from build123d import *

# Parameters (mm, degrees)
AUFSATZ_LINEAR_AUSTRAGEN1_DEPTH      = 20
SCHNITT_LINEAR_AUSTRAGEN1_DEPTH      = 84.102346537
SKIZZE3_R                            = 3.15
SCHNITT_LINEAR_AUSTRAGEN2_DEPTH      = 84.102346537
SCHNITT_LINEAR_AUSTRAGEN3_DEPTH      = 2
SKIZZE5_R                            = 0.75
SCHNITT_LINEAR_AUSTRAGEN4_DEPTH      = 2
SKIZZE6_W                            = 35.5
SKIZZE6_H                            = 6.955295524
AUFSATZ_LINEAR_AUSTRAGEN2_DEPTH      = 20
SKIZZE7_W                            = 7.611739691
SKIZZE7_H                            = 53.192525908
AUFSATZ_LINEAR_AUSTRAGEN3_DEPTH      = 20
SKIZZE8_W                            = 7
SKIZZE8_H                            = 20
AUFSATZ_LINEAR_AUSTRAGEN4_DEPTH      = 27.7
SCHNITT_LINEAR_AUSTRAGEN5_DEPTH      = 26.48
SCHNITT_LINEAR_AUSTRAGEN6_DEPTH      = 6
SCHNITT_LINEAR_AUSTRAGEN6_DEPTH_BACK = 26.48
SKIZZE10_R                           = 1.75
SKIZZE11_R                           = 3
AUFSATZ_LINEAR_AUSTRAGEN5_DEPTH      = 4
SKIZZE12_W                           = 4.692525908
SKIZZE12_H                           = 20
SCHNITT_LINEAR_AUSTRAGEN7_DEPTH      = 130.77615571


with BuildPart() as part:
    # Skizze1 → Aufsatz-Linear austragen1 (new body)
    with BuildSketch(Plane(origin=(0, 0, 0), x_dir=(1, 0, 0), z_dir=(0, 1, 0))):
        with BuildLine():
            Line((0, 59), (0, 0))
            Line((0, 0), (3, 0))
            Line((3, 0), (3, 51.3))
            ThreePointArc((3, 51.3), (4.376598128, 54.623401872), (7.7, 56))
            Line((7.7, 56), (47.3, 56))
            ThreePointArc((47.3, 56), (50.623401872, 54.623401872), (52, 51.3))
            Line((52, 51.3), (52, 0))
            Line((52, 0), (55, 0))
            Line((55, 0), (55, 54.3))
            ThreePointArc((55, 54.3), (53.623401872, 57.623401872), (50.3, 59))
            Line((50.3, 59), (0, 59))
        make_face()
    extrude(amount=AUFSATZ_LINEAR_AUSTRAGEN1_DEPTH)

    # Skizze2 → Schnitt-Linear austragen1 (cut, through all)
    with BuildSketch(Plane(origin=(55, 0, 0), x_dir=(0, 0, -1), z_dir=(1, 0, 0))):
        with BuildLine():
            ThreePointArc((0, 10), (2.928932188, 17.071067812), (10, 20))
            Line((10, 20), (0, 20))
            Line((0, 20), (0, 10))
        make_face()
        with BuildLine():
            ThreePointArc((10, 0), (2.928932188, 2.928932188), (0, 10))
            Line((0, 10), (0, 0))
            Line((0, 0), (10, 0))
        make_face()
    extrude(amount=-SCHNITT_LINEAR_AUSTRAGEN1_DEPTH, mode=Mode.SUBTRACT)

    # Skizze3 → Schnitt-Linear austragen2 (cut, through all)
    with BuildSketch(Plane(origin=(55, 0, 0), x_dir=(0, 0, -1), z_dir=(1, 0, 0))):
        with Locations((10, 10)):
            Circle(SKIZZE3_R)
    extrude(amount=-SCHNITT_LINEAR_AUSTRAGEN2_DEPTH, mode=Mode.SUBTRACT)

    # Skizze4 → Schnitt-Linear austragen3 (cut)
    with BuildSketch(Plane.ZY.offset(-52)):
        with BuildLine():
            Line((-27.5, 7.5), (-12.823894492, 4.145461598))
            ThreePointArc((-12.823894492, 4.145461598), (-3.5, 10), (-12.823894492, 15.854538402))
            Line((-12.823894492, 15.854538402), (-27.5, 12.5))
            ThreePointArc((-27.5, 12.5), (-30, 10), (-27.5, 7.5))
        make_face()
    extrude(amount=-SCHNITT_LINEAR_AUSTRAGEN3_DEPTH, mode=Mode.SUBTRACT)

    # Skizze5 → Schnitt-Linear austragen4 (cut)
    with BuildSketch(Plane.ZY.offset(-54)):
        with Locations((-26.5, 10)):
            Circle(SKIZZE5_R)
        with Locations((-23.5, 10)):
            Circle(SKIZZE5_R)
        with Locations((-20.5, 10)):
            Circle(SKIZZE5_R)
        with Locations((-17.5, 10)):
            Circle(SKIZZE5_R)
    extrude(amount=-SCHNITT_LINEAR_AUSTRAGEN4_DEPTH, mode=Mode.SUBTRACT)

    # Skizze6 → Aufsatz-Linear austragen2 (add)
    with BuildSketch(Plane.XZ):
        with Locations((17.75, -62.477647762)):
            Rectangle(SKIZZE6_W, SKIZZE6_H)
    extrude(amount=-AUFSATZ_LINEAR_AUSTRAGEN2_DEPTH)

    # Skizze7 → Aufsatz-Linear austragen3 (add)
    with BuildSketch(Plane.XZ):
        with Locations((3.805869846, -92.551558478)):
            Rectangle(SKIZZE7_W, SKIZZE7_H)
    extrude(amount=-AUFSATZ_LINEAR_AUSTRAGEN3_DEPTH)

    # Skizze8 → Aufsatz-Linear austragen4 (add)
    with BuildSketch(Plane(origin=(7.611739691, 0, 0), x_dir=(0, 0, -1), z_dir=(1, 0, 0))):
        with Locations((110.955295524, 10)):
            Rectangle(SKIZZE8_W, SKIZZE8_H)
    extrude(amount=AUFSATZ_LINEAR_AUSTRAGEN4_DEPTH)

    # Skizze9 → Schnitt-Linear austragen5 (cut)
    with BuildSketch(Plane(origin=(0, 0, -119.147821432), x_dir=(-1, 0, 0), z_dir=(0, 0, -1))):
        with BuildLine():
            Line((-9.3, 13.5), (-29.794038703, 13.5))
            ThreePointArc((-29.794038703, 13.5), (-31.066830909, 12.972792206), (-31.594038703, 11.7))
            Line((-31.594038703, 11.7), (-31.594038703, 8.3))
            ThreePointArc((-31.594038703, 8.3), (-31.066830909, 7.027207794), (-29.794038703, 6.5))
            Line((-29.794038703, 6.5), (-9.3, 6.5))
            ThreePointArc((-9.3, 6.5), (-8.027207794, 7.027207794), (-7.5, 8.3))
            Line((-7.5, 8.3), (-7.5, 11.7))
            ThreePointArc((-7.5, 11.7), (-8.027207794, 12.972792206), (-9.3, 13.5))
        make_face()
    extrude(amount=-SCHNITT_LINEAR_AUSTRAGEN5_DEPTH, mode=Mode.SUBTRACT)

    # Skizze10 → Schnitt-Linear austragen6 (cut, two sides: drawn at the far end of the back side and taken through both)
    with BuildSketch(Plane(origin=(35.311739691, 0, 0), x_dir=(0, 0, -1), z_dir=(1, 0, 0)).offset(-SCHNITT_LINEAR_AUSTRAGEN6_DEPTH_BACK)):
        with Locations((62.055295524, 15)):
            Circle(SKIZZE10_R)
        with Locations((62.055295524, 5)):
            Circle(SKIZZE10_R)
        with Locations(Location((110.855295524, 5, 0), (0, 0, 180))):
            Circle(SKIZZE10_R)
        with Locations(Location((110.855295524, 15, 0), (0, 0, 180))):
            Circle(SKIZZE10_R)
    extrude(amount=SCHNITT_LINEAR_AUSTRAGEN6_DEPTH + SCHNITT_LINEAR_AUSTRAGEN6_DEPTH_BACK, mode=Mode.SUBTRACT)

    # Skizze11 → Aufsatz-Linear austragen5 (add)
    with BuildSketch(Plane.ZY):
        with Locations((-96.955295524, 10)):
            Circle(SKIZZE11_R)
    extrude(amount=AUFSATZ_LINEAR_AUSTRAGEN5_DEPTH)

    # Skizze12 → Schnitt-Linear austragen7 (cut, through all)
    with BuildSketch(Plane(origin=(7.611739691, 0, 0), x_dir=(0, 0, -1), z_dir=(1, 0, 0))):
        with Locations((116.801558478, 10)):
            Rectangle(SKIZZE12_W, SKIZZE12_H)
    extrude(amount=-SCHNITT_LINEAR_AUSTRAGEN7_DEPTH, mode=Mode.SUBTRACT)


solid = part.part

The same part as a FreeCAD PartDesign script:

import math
import FreeCAD as App
import Part
import Sketcher

V = App.Vector
Q = App.Units.Quantity


def add_polygon(sketch, points):
    """Adds a closed chain of lines whose ends are joined by coincident constraints."""
    first, n = sketch.GeometryCount, len(points)
    for a, b in zip(points, points[1:] + points[:1]):
        sketch.addGeometry(Part.LineSegment(App.Vector(*a, 0), App.Vector(*b, 0)), False)
    for i in range(n):
        sketch.addConstraint(Sketcher.Constraint("Coincident", first + i, 2, first + (i + 1) % n, 1))

doc = App.newDocument("Part")
params = doc.addObject("Spreadsheet::Sheet", "Params")
for row, (alias, value) in enumerate([
    ("sketch1_radius", "4.7 mm"),
    ("sketch1_width", "3 mm"),
    ("sketch1_height", "59 mm"),
    ("sketch1_width2", "39.6 mm"),
    ("sketch1_height2", "51.3 mm"),
    ("pad1_length", "20 mm"),
    ("sketch2_radius", "10 mm"),
    ("sketch3_diameter", "6.3 mm"),
    ("sketch4_radius", "6.5 mm"),
    ("sketch4_radius2", "2.5 mm"),
    ("pocket3_length", "2 mm"),
    ("sketch5_diameter", "1.5 mm"),
    ("pocket4_length", "2 mm"),
    ("sketch6_width", "35.5 mm"),
    ("pad2_length", "20 mm"),
    ("pad3_length", "20 mm"),
    ("sketch8_width", "20 mm"),
    ("sketch8_height", "7 mm"),
    ("pad4_length", "27.7 mm"),
    ("sketch9_radius", "1.8 mm"),
    ("sketch9_height", "3.4 mm"),
    ("pocket5_length", "26.48 mm"),
    ("sketch10_diameter", "3.5 mm"),
    ("pocket6_length", "6 mm"),
    ("pocket6_length2", "26.48 mm"),
    ("sketch11_diameter", "6 mm"),
    ("pad5_length", "4 mm"),
    ("sketch12_width", "20 mm"),
], start=1):
    params.set(f"A{row}", alias)
    params.set(f"B{row}", "=" + value)
    params.setAlias(f"B{row}", alias)

body = doc.addObject("PartDesign::Body", "Body")

# Sketch on XZ plane
sketch1 = doc.addObject("Sketcher::SketchObject", "Sketch")
body.addObject(sketch1)
sketch1.AttachmentSupport = (doc.XZ_Plane, [""])
sketch1.MapMode = "FlatFace"
sketch1.addGeometry([
    Part.LineSegment(V(0, -59, 0), V(0, 0, 0)),  # 0
    Part.LineSegment(V(0, 0, 0), V(3, 0, 0)),  # 1
    Part.LineSegment(V(3, 0, 0), V(3, -51.3, 0)),  # 2
    Part.ArcOfCircle(Part.Circle(V(7.7, -51.3, 0), V(0, 0, 1), 4.7), math.radians(180), math.radians(270)),  # 3
    Part.LineSegment(V(7.7, -56, 0), V(47.3, -56, 0)),  # 4
    Part.ArcOfCircle(Part.Circle(V(47.3, -51.3, 0), V(0, 0, 1), 4.7), math.radians(-90), math.radians(0)),  # 5
    Part.LineSegment(V(52, -51.3, 0), V(52, 0, 0)),  # 6
    Part.LineSegment(V(52, 0, 0), V(55, 0, 0)),  # 7
    Part.LineSegment(V(55, 0, 0), V(55, -54.3, 0)),  # 8
    Part.ArcOfCircle(Part.Circle(V(50.3, -54.3, 0), V(0, 0, 1), 4.7), math.radians(-90), math.radians(0)),  # 9
    Part.LineSegment(V(50.3, -59, 0), V(0, -59, 0)),  # 10
], False)
sketch1.addConstraint([
    Sketcher.Constraint("Coincident", 0, 2, 1, 1),
    Sketcher.Constraint("Coincident", 1, 2, 2, 1),
    Sketcher.Constraint("Tangent", 2, 2, 3, 1),
    Sketcher.Constraint("Tangent", 3, 2, 4, 1),
    Sketcher.Constraint("Tangent", 4, 2, 5, 1),
    Sketcher.Constraint("Tangent", 5, 2, 6, 1),
    Sketcher.Constraint("Coincident", 6, 2, 7, 1),
    Sketcher.Constraint("Coincident", 7, 2, 8, 1),
    Sketcher.Constraint("Tangent", 8, 2, 9, 2),
    Sketcher.Constraint("Tangent", 9, 1, 10, 1),
    Sketcher.Constraint("Coincident", 10, 2, 0, 1),
    Sketcher.Constraint("Vertical", 0),
    Sketcher.Constraint("Horizontal", 1),
    Sketcher.Constraint("Vertical", 2),
    Sketcher.Constraint("Horizontal", 4),
    Sketcher.Constraint("Vertical", 6),
    Sketcher.Constraint("Horizontal", 7),
    Sketcher.Constraint("Vertical", 8),
    Sketcher.Constraint("Horizontal", 10),
    Sketcher.Constraint("Coincident", 0, 2, -1, 1),
    Sketcher.Constraint("Equal", 3, 5),
    Sketcher.Constraint("Equal", 5, 9),
    Sketcher.Constraint("PointOnObject", 6, 2, -1),
    Sketcher.Constraint("Equal", 1, 7),
    Sketcher.Constraint("Radius", 3, Q("4.7 mm")),
    Sketcher.Constraint("DistanceX", 1, 1, 1, 2, Q("3 mm")),
    Sketcher.Constraint("DistanceY", 0, 1, 0, 2, Q("59 mm")),
    Sketcher.Constraint("DistanceX", 4, 1, 4, 2, Q("39.6 mm")),
    Sketcher.Constraint("DistanceY", 2, 2, 2, 1, Q("51.3 mm")),
])
sketch1.setExpression("Constraints[24]", "Params.sketch1_radius")
sketch1.setExpression("Constraints[25]", "Params.sketch1_width")
sketch1.setExpression("Constraints[26]", "Params.sketch1_height")
sketch1.setExpression("Constraints[27]", "Params.sketch1_width2")
sketch1.setExpression("Constraints[28]", "Params.sketch1_height2")
pad1 = doc.addObject("PartDesign::Pad", "Pad")
body.addObject(pad1)
pad1.Profile = sketch1
pad1.setExpression("Length", "Params.pad1_length")
pad1.Reversed = True

# Sketch on YZ plane
sketch2 = doc.addObject("Sketcher::SketchObject", "Sketch001")
body.addObject(sketch2)
sketch2.AttachmentSupport = (doc.YZ_Plane, [""])
sketch2.MapMode = "FlatFace"
sketch2.AttachmentOffset = App.Placement(V(0, 0, 55), App.Rotation())
sketch2.addGeometry([
    Part.ArcOfCircle(Part.Circle(V(10, -10, 0), V(0, 0, 1), 10), math.radians(0), math.radians(90)),  # 0
    Part.LineSegment(V(20, -10, 0), V(20, 0, 0)),  # 1
    Part.LineSegment(V(20, 0, 0), V(10, 0, 0)),  # 2
    Part.ArcOfCircle(Part.Circle(V(10, -10, 0), V(0, 0, 1), 10), math.radians(90), math.radians(180)),  # 3
    Part.LineSegment(V(10, 0, 0), V(0, 0, 0)),  # 4
    Part.LineSegment(V(0, 0, 0), V(0, -10, 0)),  # 5
], False)
sketch2.addConstraint([
    Sketcher.Constraint("Tangent", 0, 1, 1, 1),
    Sketcher.Constraint("Coincident", 1, 2, 2, 1),
    Sketcher.Constraint("Tangent", 2, 2, 0, 2),
    Sketcher.Constraint("Tangent", 3, 1, 4, 1),
    Sketcher.Constraint("Coincident", 4, 2, 5, 1),
    Sketcher.Constraint("Tangent", 5, 2, 3, 2),
    Sketcher.Constraint("Vertical", 1),
    Sketcher.Constraint("Horizontal", 2),
    Sketcher.Constraint("Horizontal", 4),
    Sketcher.Constraint("Vertical", 5),
    Sketcher.Constraint("Coincident", 4, 2, -1, 1),
    Sketcher.Constraint("Coincident", 3, 3, 0, 3),
    Sketcher.Constraint("Equal", 0, 3),
    Sketcher.Constraint("Radius", 0, Q("10 mm")),
])
sketch2.setExpression("Constraints[13]", "Params.sketch2_radius")
pocket1 = doc.addObject("PartDesign::Pocket", "Pocket")
body.addObject(pocket1)
pocket1.Profile = sketch2
pocket1.Type = "ThroughAll"

# Sketch on YZ plane
sketch3 = doc.addObject("Sketcher::SketchObject", "Sketch002")
body.addObject(sketch3)
sketch3.AttachmentSupport = (doc.YZ_Plane, [""])
sketch3.MapMode = "FlatFace"
sketch3.AttachmentOffset = App.Placement(V(0, 0, 55), App.Rotation())
sketch3.addGeometry(Part.Circle(V(10, -10, 0), V(0, 0, 1), 3.1), False)
sketch3.addConstraint([
    Sketcher.Constraint("Diameter", 0, Q("6.3 mm")),
    Sketcher.Constraint("DistanceX", -1, 1, 0, 3, Q("10 mm")),
    Sketcher.Constraint("DistanceY", 0, 3, -1, 1, Q("10 mm")),
])
sketch3.setExpression("Constraints[0]", "Params.sketch3_diameter")
pocket2 = doc.addObject("PartDesign::Pocket", "Pocket001")
body.addObject(pocket2)
pocket2.Profile = sketch3
pocket2.Type = "ThroughAll"

# Sketch on YZ plane
sketch4 = doc.addObject("Sketcher::SketchObject", "Sketch003")
body.addObject(sketch4)
sketch4.AttachmentSupport = (doc.YZ_Plane, [""])
sketch4.MapMode = "FlatFace"
sketch4.AttachmentOffset = App.Placement(V(0, 0, 52), App.Rotation())
sketch4.addGeometry([
    Part.LineSegment(V(7.5, -27.5, 0), V(4.1, -12.8, 0)),
    Part.ArcOfCircle(Part.Circle(V(10, -10, 0), V(0, 0, 1), 6.5), math.radians(-26), math.radians(206)),
    Part.LineSegment(V(15.9, -12.8, 0), V(12.5, -27.5, 0)),
    Part.ArcOfCircle(Part.Circle(V(10, -27.5, 0), V(0, 0, 1), 2.5), math.radians(180), math.radians(360)),
], False)
sketch4.addConstraint([
    Sketcher.Constraint("Coincident", 0, 2, 1, 2),
    Sketcher.Constraint("Coincident", 1, 1, 2, 1),
    Sketcher.Constraint("Coincident", 2, 2, 3, 2),
    Sketcher.Constraint("Coincident", 3, 1, 0, 1),
    Sketcher.Constraint("Horizontal", 0, 2, 1, 1),
    Sketcher.Constraint("Horizontal", 3, 3, 2, 2),
    Sketcher.Constraint("Horizontal", 2, 2, 3, 1),
    Sketcher.Constraint("Vertical", 1, 3, 3, 3),
    Sketcher.Constraint("Radius", 1, Q("6.5 mm")),
    Sketcher.Constraint("Radius", 3, Q("2.5 mm")),
    Sketcher.Constraint("DistanceX", -1, 1, 1, 3, Q("10 mm")),
    Sketcher.Constraint("DistanceY", 1, 3, -1, 1, Q("10 mm")),
    Sketcher.Constraint("DistanceY", 3, 3, -1, 1, Q("27.5 mm")),
    Sketcher.Constraint("Distance", 0, Q("15.054601 mm")),
])
sketch4.setExpression("Constraints[8]", "Params.sketch4_radius")
sketch4.setExpression("Constraints[9]", "Params.sketch4_radius2")
pocket3 = doc.addObject("PartDesign::Pocket", "Pocket002")
body.addObject(pocket3)
pocket3.Profile = sketch4
pocket3.setExpression("Length", "Params.pocket3_length")
pocket3.Reversed = True

# Sketch on YZ plane
sketch5 = doc.addObject("Sketcher::SketchObject", "Sketch004")
body.addObject(sketch5)
sketch5.AttachmentSupport = (doc.YZ_Plane, [""])
sketch5.MapMode = "FlatFace"
sketch5.AttachmentOffset = App.Placement(V(0, 0, 54), App.Rotation())
sketch5.addGeometry([
    Part.Circle(V(10, -26.5, 0), V(0, 0, 1), 0.8),
    Part.Circle(V(10, -23.5, 0), V(0, 0, 1), 0.8),
    Part.Circle(V(10, -20.5, 0), V(0, 0, 1), 0.8),
    Part.Circle(V(10, -17.5, 0), V(0, 0, 1), 0.8),
], False)
sketch5.addConstraint([
    Sketcher.Constraint("Equal", 0, 1),
    Sketcher.Constraint("Equal", 1, 2),
    Sketcher.Constraint("Equal", 2, 3),
    Sketcher.Constraint("Vertical", 0, 3, 1, 3),
    Sketcher.Constraint("Vertical", 1, 3, 2, 3),
    Sketcher.Constraint("Vertical", 2, 3, 3, 3),
    Sketcher.Constraint("Diameter", 0, Q("1.5 mm")),
    Sketcher.Constraint("DistanceX", -1, 1, 0, 3, Q("10 mm")),
    Sketcher.Constraint("DistanceY", 0, 3, 1, 3, Q("3 mm")),
    Sketcher.Constraint("DistanceY", 1, 3, 2, 3, Q("3 mm")),
    Sketcher.Constraint("DistanceY", 2, 3, 3, 3, Q("3 mm")),
    Sketcher.Constraint("DistanceY", 0, 3, -1, 1, Q("26.5 mm")),
])
sketch5.setExpression("Constraints[6]", "Params.sketch5_diameter")
pocket4 = doc.addObject("PartDesign::Pocket", "Pocket003")
body.addObject(pocket4)
pocket4.Profile = sketch5
pocket4.setExpression("Length", "Params.pocket4_length")
pocket4.Reversed = True

# Sketch on XZ plane
sketch6 = doc.addObject("Sketcher::SketchObject", "Sketch005")
body.addObject(sketch6)
sketch6.AttachmentSupport = (doc.XZ_Plane, [""])
sketch6.MapMode = "FlatFace"
add_polygon(sketch6, [(0, -59), (0, -66), (36, -66), (36, -59)])  # lines 0-3
sketch6.addConstraint([
    Sketcher.Constraint("Vertical", 0),
    Sketcher.Constraint("Horizontal", 1),
    Sketcher.Constraint("Vertical", 2),
    Sketcher.Constraint("Horizontal", 3),
    Sketcher.Constraint("PointOnObject", 0, 2, -2),
    Sketcher.Constraint("DistanceX", 1, 1, 1, 2, Q("35.5 mm")),
    Sketcher.Constraint("DistanceY", 2, 2, -1, 1, Q("59 mm")),
    Sketcher.Constraint("DistanceY", 0, 2, 0, 1, Q("6.955296 mm")),
])
sketch6.setExpression("Constraints[9]", "Params.sketch6_width")
pad2 = doc.addObject("PartDesign::Pad", "Pad001")
body.addObject(pad2)
pad2.Profile = sketch6
pad2.setExpression("Length", "Params.pad2_length")
pad2.Reversed = True

# Sketch on XZ plane
sketch7 = doc.addObject("Sketcher::SketchObject", "Sketch006")
body.addObject(sketch7)
sketch7.AttachmentSupport = (doc.XZ_Plane, [""])
sketch7.MapMode = "FlatFace"
add_polygon(sketch7, [(0, -66), (0, -119), (8, -119), (8, -66)])  # lines 0-3
sketch7.addConstraint([
    Sketcher.Constraint("Vertical", 0),
    Sketcher.Constraint("Horizontal", 1),
    Sketcher.Constraint("Vertical", 2),
    Sketcher.Constraint("Horizontal", 3),
    Sketcher.Constraint("PointOnObject", 0, 2, -2),
    Sketcher.Constraint("DistanceX", 1, 1, 1, 2, Q("7.61174 mm")),
    Sketcher.Constraint("DistanceY", 0, 2, 0, 1, Q("53.192526 mm")),
    Sketcher.Constraint("DistanceY", 0, 2, -1, 1, Q("119.147821 mm")),
])
pad3 = doc.addObject("PartDesign::Pad", "Pad002")
body.addObject(pad3)
pad3.Profile = sketch7
pad3.setExpression("Length", "Params.pad3_length")
pad3.Reversed = True

# Sketch on YZ plane
sketch8 = doc.addObject("Sketcher::SketchObject", "Sketch007")
body.addObject(sketch8)
sketch8.AttachmentSupport = (doc.YZ_Plane, [""])
sketch8.MapMode = "FlatFace"
sketch8.AttachmentOffset = App.Placement(V(0, 0, 7.61174), App.Rotation())
add_polygon(sketch8, [(20, -107), (0, -107), (0, -114), (20, -114)])  # lines 0-3
sketch8.addConstraint([
    Sketcher.Constraint("Horizontal", 0),
    Sketcher.Constraint("Vertical", 1),
    Sketcher.Constraint("Horizontal", 2),
    Sketcher.Constraint("Vertical", 3),
    Sketcher.Constraint("PointOnObject", 0, 2, -2),
    Sketcher.Constraint("DistanceX", 0, 2, 0, 1, Q("20 mm")),
    Sketcher.Constraint("DistanceY", 1, 2, 1, 1, Q("7 mm")),
    Sketcher.Constraint("DistanceY", 0, 2, -1, 1, Q("107.455296 mm")),
])
sketch8.setExpression("Constraints[9]", "Params.sketch8_width")
sketch8.setExpression("Constraints[10]", "Params.sketch8_height")
pad4 = doc.addObject("PartDesign::Pad", "Pad003")
body.addObject(pad4)
pad4.Profile = sketch8
pad4.setExpression("Length", "Params.pad4_length")

# Sketch on XY plane
sketch9 = doc.addObject("Sketcher::SketchObject", "Sketch008")
body.addObject(sketch9)
sketch9.AttachmentSupport = (doc.XY_Plane, [""])
sketch9.MapMode = "FlatFace"
sketch9.AttachmentOffset = App.Placement(V(0, 0, -119.147821), App.Rotation())
sketch9.addGeometry([
    Part.LineSegment(V(9.3, 13.5, 0), V(29.8, 13.5, 0)),  # 0
    Part.ArcOfCircle(Part.Circle(V(29.8, 11.7, 0), V(0, 0, 1), 1.8), math.radians(0), math.radians(90)),  # 1
    Part.LineSegment(V(31.6, 11.7, 0), V(31.6, 8.3, 0)),  # 2
    Part.ArcOfCircle(Part.Circle(V(29.8, 8.3, 0), V(0, 0, 1), 1.8), math.radians(-90), math.radians(0)),  # 3
    Part.LineSegment(V(29.8, 6.5, 0), V(9.3, 6.5, 0)),  # 4
    Part.ArcOfCircle(Part.Circle(V(9.3, 8.3, 0), V(0, 0, 1), 1.8), math.radians(180), math.radians(270)),  # 5
    Part.LineSegment(V(7.5, 8.3, 0), V(7.5, 11.7, 0)),  # 6
    Part.ArcOfCircle(Part.Circle(V(9.3, 11.7, 0), V(0, 0, 1), 1.8), math.radians(90), math.radians(180)),  # 7
], False)
sketch9.addConstraint([
    Sketcher.Constraint("Tangent", 0, 2, 1, 2),
    Sketcher.Constraint("Tangent", 1, 1, 2, 1),
    Sketcher.Constraint("Tangent", 2, 2, 3, 2),
    Sketcher.Constraint("Tangent", 3, 1, 4, 1),
    Sketcher.Constraint("Tangent", 4, 2, 5, 2),
    Sketcher.Constraint("Tangent", 5, 1, 6, 1),
    Sketcher.Constraint("Tangent", 6, 2, 7, 2),
    Sketcher.Constraint("Tangent", 7, 1, 0, 1),
    Sketcher.Constraint("Horizontal", 0),
    Sketcher.Constraint("Vertical", 2),
    Sketcher.Constraint("Horizontal", 4),
    Sketcher.Constraint("Vertical", 6),
    Sketcher.Constraint("Equal", 1, 3),
    Sketcher.Constraint("Equal", 3, 5),
    Sketcher.Constraint("Equal", 5, 7),
    Sketcher.Constraint("Radius", 1, Q("1.8 mm")),
    Sketcher.Constraint("DistanceY", 2, 2, 2, 1, Q("3.4 mm")),
    Sketcher.Constraint("DistanceY", -1, 1, 1, 3, Q("11.7 mm")),
    Sketcher.Constraint("DistanceX", -1, 1, 5, 3, Q("9.3 mm")),
    Sketcher.Constraint("DistanceX", 0, 1, 0, 2, Q("20.494039 mm")),
])
sketch9.setExpression("Constraints[15]", "Params.sketch9_radius")
sketch9.setExpression("Constraints[16]", "Params.sketch9_height")
pocket5 = doc.addObject("PartDesign::Pocket", "Pocket004")
body.addObject(pocket5)
pocket5.Profile = sketch9
pocket5.setExpression("Length", "Params.pocket5_length")
pocket5.Reversed = True

# Sketch on YZ plane
sketch10 = doc.addObject("Sketcher::SketchObject", "Sketch009")
body.addObject(sketch10)
sketch10.AttachmentSupport = (doc.YZ_Plane, [""])
sketch10.MapMode = "FlatFace"
sketch10.AttachmentOffset = App.Placement(V(0, 0, 35.31174), App.Rotation())
sketch10.addGeometry([
    Part.Circle(V(15, -62.1, 0), V(0, 0, 1), 1.8),
    Part.Circle(V(5, -62.1, 0), V(0, 0, 1), 1.8),
    Part.Circle(V(5, -110.9, 0), V(0, 0, 1), 1.8),
    Part.Circle(V(15, -110.9, 0), V(0, 0, 1), 1.8),
], False)
sketch10.addConstraint([
    Sketcher.Constraint("Equal", 0, 1),
    Sketcher.Constraint("Equal", 1, 2),
    Sketcher.Constraint("Equal", 2, 3),
    Sketcher.Constraint("Horizontal", 0, 3, 1, 3),
    Sketcher.Constraint("Horizontal", 2, 3, 3, 3),
    Sketcher.Constraint("Vertical", 1, 3, 2, 3),
    Sketcher.Constraint("Vertical", 0, 3, 3, 3),
    Sketcher.Constraint("Diameter", 0, Q("3.5 mm")),
    Sketcher.Constraint("DistanceX", -1, 1, 0, 3, Q("15 mm")),
    Sketcher.Constraint("DistanceX", -1, 1, 1, 3, Q("5 mm")),
    Sketcher.Constraint("DistanceY", 2, 3, 1, 3, Q("48.8 mm")),
    Sketcher.Constraint("DistanceY", 0, 3, -1, 1, Q("62.055296 mm")),
])
sketch10.setExpression("Constraints[7]", "Params.sketch10_diameter")
pocket6 = doc.addObject("PartDesign::Pocket", "Pocket005")
body.addObject(pocket6)
pocket6.Profile = sketch10
pocket6.Type = "TwoLengths"
pocket6.setExpression("Length", "Params.pocket6_length")
pocket6.setExpression("Length2", "Params.pocket6_length2")
pocket6.Reversed = True

# Sketch on YZ plane
sketch11 = doc.addObject("Sketcher::SketchObject", "Sketch010")
body.addObject(sketch11)
sketch11.AttachmentSupport = (doc.YZ_Plane, [""])
sketch11.MapMode = "FlatFace"
sketch11.addGeometry(Part.Circle(V(10, -97, 0), V(0, 0, 1), 3), False)
sketch11.addConstraint([
    Sketcher.Constraint("Diameter", 0, Q("6 mm")),
    Sketcher.Constraint("DistanceX", -1, 1, 0, 3, Q("10 mm")),
    Sketcher.Constraint("DistanceY", 0, 3, -1, 1, Q("96.955296 mm")),
])
sketch11.setExpression("Constraints[0]", "Params.sketch11_diameter")
pad5 = doc.addObject("PartDesign::Pad", "Pad004")
body.addObject(pad5)
pad5.Profile = sketch11
pad5.setExpression("Length", "Params.pad5_length")
pad5.Reversed = True

# Sketch on YZ plane
sketch12 = doc.addObject("Sketcher::SketchObject", "Sketch011")
body.addObject(sketch12)
sketch12.AttachmentSupport = (doc.YZ_Plane, [""])
sketch12.MapMode = "FlatFace"
sketch12.AttachmentOffset = App.Placement(V(0, 0, 7.61174), App.Rotation())
add_polygon(sketch12, [(20, -114.5), (0, -114.5), (0, -119.1), (20, -119.1)])  # lines 0-3
sketch12.addConstraint([
    Sketcher.Constraint("Horizontal", 0),
    Sketcher.Constraint("Vertical", 1),
    Sketcher.Constraint("Horizontal", 2),
    Sketcher.Constraint("Vertical", 3),
    Sketcher.Constraint("PointOnObject", 0, 2, -2),
    Sketcher.Constraint("DistanceX", 0, 2, 0, 1, Q("20 mm")),
    Sketcher.Constraint("DistanceY", 1, 2, 1, 1, Q("4.692526 mm")),
    Sketcher.Constraint("DistanceY", 1, 2, -1, 1, Q("119.147821 mm")),
])
sketch12.setExpression("Constraints[9]", "Params.sketch12_width")
pocket7 = doc.addObject("PartDesign::Pocket", "Pocket006")
body.addObject(pocket7)
pocket7.Profile = sketch12
pocket7.Type = "ThroughAll"

doc.recompute()
